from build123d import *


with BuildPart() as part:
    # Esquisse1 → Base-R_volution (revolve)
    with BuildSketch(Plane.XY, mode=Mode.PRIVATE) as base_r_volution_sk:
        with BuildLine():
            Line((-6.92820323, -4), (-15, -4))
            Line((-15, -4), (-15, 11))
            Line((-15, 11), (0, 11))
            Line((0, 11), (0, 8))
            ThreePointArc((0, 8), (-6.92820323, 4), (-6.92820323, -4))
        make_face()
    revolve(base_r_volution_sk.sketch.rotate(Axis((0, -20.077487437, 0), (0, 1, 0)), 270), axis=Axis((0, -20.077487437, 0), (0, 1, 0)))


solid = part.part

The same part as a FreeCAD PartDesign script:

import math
import FreeCAD as App
import Part
import Sketcher

V = App.Vector

doc = App.newDocument("Part")
body = doc.addObject("PartDesign::Body", "Body")

# Sketch on XY plane
sketch1 = body.newObject("Sketcher::SketchObject", "Sketch")
sketch1.AttachmentSupport = (doc.getObject("XY_Plane"), [""])
sketch1.MapMode = "FlatFace"
sketch1.addGeometry(Part.LineSegment(V(-15, -4, 0), V(-6.928203, -4, 0)), False)
sketch1.addGeometry(Part.ArcOfCircle(Part.Circle(V(0, 0, 0), V(0, 0, 1), 8), math.radians(90), math.radians(210)), False)
sketch1.addGeometry(Part.LineSegment(V(0, 8, 0), V(0, 11, 0)), False)
sketch1.addGeometry(Part.LineSegment(V(0, 11, 0), V(-15, 11, 0)), False)
sketch1.addGeometry(Part.LineSegment(V(-15, 11, 0), V(-15, -4, 0)), False)
sketch1.addConstraint(Sketcher.Constraint("Coincident", 0, 2, 1, 2))
sketch1.addConstraint(Sketcher.Constraint("Coincident", 1, 1, 2, 1))
sketch1.addConstraint(Sketcher.Constraint("Coincident", 2, 2, 3, 1))
sketch1.addConstraint(Sketcher.Constraint("Coincident", 3, 2, 4, 1))
sketch1.addConstraint(Sketcher.Constraint("Coincident", 4, 2, 0, 1))
sketch1.addConstraint(Sketcher.Constraint("Horizontal", 0))
sketch1.addConstraint(Sketcher.Constraint("Vertical", 2))
sketch1.addConstraint(Sketcher.Constraint("Horizontal", 3))
sketch1.addConstraint(Sketcher.Constraint("Vertical", 4))
sketch1.addConstraint(Sketcher.Constraint("Coincident", 1, 3, -1, 1))
sketch1.addConstraint(Sketcher.Constraint("PointOnObject", 1, 1, -2))
sketch1.addConstraint(Sketcher.Constraint("Equal", 3, 4))
sketch1.addConstraint(Sketcher.Constraint("Radius", 1, 8.0))
sketch1.addConstraint(Sketcher.Constraint("DistanceX", 3, 2, 3, 1, 15.0))
sketch1.addConstraint(Sketcher.Constraint("DistanceY", 2, 1, 2, 2, 3.0))
revolution = body.newObject("PartDesign::Revolution", "Revolution")
revolution.Profile = sketch1
revolution.ReferenceAxis = (sketch1, ["V_Axis"])
revolution.Angle = 360

doc.recompute()
